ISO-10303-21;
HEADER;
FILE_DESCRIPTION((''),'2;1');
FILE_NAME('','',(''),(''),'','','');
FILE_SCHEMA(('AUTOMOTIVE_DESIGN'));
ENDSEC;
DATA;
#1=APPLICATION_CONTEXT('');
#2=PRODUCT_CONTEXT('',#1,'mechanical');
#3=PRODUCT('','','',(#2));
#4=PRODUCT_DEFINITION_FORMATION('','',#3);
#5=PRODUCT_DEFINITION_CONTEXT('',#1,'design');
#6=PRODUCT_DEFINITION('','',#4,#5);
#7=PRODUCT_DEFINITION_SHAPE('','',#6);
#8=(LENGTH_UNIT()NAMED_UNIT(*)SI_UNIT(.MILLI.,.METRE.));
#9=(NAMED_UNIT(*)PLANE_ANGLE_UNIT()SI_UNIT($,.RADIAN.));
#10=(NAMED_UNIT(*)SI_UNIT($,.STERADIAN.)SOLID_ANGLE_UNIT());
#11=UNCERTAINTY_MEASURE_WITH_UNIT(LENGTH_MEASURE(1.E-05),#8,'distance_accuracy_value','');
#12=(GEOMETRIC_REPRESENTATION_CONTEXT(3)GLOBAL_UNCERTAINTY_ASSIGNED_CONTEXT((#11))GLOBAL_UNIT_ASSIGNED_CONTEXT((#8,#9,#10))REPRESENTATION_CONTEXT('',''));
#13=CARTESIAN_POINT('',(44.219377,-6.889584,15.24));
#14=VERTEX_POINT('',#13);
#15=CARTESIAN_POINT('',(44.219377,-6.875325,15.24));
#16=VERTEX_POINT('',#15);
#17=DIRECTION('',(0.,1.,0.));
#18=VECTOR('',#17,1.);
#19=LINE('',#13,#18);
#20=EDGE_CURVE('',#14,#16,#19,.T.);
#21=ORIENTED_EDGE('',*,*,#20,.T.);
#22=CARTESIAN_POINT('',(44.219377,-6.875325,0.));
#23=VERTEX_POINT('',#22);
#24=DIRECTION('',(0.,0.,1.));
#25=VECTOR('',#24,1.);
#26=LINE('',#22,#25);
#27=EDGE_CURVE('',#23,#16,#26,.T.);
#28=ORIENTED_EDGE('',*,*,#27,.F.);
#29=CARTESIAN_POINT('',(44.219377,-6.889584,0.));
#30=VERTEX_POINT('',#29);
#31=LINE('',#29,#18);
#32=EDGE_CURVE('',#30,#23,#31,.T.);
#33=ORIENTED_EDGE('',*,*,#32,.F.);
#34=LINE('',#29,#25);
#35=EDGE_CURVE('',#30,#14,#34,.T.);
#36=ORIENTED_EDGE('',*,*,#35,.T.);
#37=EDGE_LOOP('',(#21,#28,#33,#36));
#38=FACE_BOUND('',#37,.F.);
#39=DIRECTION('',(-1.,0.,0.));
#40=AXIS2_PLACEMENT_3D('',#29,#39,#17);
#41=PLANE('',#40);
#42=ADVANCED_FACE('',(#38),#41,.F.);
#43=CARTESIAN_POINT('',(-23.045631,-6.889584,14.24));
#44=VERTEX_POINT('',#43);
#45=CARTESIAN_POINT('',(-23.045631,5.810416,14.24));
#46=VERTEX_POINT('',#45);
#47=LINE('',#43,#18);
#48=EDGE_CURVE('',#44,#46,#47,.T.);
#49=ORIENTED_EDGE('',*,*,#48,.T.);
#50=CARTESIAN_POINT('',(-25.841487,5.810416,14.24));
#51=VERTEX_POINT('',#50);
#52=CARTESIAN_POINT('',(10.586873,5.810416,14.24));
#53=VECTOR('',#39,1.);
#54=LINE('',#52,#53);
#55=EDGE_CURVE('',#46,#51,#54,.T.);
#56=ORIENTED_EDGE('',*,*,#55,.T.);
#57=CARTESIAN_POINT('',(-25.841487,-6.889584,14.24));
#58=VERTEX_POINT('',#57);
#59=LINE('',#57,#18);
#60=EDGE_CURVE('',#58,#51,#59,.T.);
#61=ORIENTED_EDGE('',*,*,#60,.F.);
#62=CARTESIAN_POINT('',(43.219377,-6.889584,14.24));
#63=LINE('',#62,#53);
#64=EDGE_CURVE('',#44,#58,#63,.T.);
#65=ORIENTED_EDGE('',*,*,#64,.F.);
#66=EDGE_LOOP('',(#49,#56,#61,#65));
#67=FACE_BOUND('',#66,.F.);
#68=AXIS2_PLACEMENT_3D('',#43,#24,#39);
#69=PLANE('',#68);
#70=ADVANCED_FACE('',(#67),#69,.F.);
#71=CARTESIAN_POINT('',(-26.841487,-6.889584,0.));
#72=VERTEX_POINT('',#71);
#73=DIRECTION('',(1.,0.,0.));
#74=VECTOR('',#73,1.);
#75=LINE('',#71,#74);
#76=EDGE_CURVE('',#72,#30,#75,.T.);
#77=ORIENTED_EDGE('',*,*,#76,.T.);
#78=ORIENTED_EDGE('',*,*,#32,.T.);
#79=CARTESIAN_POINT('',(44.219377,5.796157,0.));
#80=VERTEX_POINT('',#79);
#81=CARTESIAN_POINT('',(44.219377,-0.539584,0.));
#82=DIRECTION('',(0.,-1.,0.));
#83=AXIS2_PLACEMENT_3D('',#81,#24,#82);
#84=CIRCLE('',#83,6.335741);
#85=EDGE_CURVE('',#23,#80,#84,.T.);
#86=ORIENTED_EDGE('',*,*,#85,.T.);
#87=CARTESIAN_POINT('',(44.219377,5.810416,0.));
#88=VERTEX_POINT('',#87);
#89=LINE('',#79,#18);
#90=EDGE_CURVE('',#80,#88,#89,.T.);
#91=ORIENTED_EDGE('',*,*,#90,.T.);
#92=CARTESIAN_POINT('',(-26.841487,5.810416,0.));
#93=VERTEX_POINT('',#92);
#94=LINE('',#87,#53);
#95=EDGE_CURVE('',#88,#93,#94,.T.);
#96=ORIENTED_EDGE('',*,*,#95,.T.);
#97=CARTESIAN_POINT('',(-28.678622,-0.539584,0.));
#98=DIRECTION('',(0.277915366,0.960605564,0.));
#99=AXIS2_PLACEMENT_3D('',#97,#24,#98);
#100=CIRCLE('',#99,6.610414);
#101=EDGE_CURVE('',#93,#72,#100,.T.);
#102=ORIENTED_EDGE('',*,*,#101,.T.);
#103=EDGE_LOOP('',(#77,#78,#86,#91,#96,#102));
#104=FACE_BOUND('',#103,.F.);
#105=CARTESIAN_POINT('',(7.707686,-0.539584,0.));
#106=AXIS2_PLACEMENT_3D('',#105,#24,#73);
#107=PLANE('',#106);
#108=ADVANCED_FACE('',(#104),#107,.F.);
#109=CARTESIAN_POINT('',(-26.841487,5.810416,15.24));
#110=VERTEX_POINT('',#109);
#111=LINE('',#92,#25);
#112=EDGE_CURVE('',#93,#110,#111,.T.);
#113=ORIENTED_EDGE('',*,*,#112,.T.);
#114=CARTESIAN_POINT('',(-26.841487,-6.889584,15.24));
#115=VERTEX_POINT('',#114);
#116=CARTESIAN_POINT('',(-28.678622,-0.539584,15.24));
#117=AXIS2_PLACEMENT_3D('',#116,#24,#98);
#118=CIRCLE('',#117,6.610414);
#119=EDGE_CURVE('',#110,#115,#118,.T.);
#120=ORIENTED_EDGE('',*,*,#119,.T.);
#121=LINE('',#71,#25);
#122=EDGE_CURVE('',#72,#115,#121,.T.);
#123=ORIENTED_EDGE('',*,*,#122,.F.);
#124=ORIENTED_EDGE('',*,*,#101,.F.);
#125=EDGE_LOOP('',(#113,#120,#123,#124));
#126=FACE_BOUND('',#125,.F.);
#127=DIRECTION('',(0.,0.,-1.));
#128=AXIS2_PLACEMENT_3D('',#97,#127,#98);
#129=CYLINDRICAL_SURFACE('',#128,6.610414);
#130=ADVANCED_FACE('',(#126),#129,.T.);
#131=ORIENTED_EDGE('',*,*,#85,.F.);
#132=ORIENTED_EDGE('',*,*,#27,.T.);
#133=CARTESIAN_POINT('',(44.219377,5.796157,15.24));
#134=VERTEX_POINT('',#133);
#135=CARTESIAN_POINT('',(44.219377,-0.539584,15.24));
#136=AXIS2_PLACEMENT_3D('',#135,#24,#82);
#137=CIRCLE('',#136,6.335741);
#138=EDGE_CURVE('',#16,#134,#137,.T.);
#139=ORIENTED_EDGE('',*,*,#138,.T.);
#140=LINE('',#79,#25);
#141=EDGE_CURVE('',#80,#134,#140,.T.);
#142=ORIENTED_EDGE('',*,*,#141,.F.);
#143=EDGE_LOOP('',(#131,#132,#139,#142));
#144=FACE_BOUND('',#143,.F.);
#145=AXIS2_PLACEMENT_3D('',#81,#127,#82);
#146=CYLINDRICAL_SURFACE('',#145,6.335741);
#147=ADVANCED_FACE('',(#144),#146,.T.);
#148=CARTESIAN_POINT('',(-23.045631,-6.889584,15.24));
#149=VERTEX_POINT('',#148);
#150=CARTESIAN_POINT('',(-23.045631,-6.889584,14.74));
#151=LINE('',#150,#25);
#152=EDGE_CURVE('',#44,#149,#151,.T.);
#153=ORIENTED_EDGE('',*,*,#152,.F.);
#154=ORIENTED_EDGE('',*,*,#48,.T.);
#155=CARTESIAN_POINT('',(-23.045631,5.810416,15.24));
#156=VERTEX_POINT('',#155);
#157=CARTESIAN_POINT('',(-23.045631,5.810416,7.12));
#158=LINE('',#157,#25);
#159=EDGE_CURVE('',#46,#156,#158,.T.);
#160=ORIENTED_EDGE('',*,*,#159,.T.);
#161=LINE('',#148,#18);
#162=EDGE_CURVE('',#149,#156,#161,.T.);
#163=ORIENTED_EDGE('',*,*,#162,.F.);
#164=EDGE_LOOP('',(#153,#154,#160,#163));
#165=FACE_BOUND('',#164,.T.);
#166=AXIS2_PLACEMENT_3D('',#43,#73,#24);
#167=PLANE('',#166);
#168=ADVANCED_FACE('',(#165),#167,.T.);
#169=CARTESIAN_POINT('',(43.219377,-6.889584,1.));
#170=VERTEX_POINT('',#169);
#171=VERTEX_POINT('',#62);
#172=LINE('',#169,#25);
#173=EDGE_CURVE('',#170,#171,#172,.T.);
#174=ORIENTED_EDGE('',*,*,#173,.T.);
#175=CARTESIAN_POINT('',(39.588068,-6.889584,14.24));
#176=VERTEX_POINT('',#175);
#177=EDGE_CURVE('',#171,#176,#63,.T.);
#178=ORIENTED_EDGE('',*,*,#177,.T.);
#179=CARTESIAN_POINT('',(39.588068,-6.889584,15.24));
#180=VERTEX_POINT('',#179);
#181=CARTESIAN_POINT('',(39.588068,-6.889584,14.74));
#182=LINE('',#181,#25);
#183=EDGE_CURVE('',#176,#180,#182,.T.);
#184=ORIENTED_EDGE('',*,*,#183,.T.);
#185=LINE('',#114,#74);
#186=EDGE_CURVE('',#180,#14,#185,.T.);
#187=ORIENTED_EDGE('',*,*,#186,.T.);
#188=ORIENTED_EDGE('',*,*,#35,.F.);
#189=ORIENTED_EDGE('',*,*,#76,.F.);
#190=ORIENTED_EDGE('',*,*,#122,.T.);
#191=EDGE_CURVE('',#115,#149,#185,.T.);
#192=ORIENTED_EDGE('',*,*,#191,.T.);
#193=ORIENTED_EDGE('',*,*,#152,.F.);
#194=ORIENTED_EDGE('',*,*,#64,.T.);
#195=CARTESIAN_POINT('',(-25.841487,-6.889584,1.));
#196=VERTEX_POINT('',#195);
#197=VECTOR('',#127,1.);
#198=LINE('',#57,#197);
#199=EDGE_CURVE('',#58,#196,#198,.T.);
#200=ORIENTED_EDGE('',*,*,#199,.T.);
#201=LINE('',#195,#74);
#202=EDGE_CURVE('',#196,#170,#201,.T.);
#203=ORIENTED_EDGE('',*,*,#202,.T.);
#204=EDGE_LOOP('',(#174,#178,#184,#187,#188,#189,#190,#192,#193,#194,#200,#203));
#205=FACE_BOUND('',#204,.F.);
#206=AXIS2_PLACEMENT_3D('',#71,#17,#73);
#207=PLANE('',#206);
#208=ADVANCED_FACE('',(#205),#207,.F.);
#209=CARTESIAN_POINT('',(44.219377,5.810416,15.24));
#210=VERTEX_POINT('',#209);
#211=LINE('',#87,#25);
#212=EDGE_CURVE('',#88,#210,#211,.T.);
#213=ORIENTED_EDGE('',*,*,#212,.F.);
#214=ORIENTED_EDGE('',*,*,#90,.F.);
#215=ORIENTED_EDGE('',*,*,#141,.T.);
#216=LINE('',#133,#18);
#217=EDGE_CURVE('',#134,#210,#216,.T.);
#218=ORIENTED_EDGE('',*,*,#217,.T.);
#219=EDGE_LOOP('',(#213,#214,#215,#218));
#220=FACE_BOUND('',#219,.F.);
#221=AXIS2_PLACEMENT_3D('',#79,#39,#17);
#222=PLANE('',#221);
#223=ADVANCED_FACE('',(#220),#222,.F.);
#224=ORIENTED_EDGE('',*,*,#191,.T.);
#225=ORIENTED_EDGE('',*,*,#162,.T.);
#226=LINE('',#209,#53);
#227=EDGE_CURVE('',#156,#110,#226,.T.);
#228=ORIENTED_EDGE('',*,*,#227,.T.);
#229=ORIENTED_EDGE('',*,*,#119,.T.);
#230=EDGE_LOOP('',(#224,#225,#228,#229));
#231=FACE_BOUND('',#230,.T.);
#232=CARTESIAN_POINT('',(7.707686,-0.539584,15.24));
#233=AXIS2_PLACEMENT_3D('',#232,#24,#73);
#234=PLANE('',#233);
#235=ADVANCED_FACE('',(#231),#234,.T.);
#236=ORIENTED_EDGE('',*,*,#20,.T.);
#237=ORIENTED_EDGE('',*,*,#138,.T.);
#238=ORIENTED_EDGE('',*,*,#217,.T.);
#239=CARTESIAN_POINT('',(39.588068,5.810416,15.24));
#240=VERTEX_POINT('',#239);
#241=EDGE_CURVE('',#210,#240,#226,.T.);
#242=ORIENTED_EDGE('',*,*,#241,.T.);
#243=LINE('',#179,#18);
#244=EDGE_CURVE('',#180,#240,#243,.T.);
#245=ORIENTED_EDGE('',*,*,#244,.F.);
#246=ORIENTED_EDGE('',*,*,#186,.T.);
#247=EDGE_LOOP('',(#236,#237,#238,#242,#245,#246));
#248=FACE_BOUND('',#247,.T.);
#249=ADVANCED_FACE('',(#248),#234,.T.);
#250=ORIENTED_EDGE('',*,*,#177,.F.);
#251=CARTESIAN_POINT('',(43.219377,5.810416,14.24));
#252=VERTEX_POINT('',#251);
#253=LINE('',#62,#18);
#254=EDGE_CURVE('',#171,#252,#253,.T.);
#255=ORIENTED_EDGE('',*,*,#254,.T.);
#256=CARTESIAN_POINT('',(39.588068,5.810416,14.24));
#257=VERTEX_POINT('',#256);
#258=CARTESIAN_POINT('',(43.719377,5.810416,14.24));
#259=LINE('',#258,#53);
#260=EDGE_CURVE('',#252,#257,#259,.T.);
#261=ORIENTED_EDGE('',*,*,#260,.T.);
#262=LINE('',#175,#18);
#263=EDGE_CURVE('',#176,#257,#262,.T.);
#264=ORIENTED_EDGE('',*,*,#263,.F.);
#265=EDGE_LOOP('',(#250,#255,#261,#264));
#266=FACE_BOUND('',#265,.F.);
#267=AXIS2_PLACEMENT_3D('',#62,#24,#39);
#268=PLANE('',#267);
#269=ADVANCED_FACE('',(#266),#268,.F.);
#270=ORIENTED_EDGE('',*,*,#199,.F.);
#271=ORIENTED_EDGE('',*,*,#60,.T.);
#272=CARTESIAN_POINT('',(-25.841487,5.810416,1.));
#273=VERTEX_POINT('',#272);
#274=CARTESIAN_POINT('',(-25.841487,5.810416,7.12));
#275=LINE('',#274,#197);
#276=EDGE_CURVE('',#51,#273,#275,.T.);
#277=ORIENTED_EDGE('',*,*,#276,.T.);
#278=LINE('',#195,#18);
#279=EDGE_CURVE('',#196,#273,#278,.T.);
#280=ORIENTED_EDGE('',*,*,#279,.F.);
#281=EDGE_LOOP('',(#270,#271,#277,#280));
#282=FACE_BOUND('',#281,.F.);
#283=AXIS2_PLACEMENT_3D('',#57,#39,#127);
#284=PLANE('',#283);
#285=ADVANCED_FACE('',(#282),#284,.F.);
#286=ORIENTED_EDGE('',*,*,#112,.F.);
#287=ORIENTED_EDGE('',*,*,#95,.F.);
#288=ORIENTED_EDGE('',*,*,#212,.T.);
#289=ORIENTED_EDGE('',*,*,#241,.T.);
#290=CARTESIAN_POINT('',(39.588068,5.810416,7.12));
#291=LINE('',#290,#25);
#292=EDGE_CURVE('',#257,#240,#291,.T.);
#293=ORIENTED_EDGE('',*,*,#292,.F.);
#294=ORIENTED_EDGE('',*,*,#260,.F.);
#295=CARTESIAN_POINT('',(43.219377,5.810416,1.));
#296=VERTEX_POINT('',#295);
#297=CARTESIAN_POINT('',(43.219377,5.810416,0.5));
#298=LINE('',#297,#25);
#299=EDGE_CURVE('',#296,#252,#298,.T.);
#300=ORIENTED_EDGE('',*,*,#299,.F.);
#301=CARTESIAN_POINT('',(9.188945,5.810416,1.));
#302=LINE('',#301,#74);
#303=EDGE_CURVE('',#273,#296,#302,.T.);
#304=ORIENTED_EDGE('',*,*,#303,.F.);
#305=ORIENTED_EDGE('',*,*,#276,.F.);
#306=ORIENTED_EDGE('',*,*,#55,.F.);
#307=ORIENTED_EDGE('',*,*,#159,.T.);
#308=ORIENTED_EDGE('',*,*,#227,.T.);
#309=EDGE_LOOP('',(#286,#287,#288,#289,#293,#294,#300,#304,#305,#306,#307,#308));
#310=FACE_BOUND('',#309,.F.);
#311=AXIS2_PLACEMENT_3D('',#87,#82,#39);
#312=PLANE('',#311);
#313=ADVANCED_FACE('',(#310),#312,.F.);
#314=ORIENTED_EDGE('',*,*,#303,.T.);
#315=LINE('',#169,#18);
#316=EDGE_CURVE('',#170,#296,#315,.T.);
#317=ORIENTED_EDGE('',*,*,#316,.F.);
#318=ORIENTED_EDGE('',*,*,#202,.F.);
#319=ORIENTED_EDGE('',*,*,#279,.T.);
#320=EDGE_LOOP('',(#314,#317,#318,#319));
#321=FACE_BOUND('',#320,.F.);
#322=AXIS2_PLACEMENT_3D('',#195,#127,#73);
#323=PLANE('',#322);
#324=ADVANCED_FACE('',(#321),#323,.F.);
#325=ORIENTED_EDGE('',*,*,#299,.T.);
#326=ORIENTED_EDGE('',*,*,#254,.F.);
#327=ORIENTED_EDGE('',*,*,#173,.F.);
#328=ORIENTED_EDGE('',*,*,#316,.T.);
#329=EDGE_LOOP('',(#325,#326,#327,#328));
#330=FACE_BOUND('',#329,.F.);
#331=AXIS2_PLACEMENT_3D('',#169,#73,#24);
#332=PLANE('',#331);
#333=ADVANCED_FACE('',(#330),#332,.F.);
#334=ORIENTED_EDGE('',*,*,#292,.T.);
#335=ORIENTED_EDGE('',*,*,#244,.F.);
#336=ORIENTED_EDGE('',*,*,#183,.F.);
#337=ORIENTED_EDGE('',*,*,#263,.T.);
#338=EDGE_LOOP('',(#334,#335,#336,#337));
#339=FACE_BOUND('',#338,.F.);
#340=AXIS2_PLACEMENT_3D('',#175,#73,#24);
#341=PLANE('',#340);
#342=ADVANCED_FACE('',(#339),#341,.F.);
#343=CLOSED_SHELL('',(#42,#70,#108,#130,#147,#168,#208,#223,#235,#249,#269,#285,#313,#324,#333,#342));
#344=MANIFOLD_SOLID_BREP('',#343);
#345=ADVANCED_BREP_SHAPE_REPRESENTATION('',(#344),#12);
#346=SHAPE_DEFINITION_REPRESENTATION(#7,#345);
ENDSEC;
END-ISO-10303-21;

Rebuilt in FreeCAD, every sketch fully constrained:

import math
import FreeCAD as App
import Part
import Sketcher
from FreeCAD import Vector
Q = App.Units.Quantity

doc = App.newDocument("Part")
body = doc.addObject("PartDesign::Body", "Body")

sketch1 = body.newObject("Sketcher::SketchObject", "Sketch")
sketch1.AttachmentSupport = (doc.getObject("XY_Plane"), [""])
sketch1.MapMode = "FlatFace"
sketch1.addGeometry([
    Part.LineSegment(Vector(44.219, 5.81, 0), Vector(-26.841, 5.81, 0)),
    Part.ArcOfCircle(Part.Circle(Vector(-28.679, -0.54, 0), Vector(0, 0, 1), 6.61), math.radians(74), math.radians(286)),
    Part.LineSegment(Vector(-26.841, -6.89, 0), Vector(44.219, -6.89, 0)),
    Part.LineSegment(Vector(44.219, -6.89, 0), Vector(44.219, -6.875, 0)),
    Part.ArcOfCircle(Part.Circle(Vector(44.219, -0.54, 0), Vector(0, 0, 1), 6.336), math.radians(-90), math.radians(90)),
    Part.LineSegment(Vector(44.219, 5.796, 0), Vector(44.219, 5.81, 0)),
], False)
sketch1.addConstraint([
    Sketcher.Constraint("Coincident", 0, 2, 1, 1),
    Sketcher.Constraint("Coincident", 1, 2, 2, 1),
    Sketcher.Constraint("Coincident", 2, 2, 3, 1),
    Sketcher.Constraint("Coincident", 3, 2, 4, 1),
    Sketcher.Constraint("Coincident", 4, 2, 5, 1),
    Sketcher.Constraint("Coincident", 5, 2, 0, 1),
    Sketcher.Constraint("Horizontal", 0),
    Sketcher.Constraint("Horizontal", 2),
    Sketcher.Constraint("Vertical", 3),
    Sketcher.Constraint("Vertical", 5),
    Sketcher.Constraint("Horizontal", 1, 3, 4, 3),
    Sketcher.Constraint("Vertical", 0, 2, 1, 2),
    Sketcher.Constraint("Vertical", 4, 3, 2, 2),
    Sketcher.Constraint("Vertical", 3, 2, 4, 2),
    Sketcher.Constraint("DistanceY", 1, 2, 0, 2, Q("0.5 in")),
    Sketcher.Constraint("DistanceX", 1, 3, 4, 3, Q("2.87 in")),
    Sketcher.Constraint("Radius", 4, Q("6.335741 mm")),
    Sketcher.Constraint("Radius", 1, Q("6.610414 mm")),
    Sketcher.Constraint("DistanceX", 1, 3, -1, 1, Q("28.678622 mm")),
    Sketcher.Constraint("DistanceY", 1, 3, -1, 1, Q("0.539584 mm")),
])
pad1 = body.newObject("PartDesign::Pad", "Pad")
pad1.Profile = sketch1
pad1.Length = Q("0.6 in")

sketch2 = body.newObject("Sketcher::SketchObject", "Sketch001")
sketch2.AttachmentSupport = (doc.getObject("XZ_Plane"), [""])
sketch2.MapMode = "FlatFace"
sketch2.AttachmentOffset = App.Placement(Vector(0, 0, 6.889584), App.Rotation())
sketch2.addGeometry([
    Part.LineSegment(Vector(-23, 14.2, 0), Vector(-25.8, 14.2, 0)),
    Part.LineSegment(Vector(-25.8, 14.2, 0), Vector(-25.8, 1, 0)),
    Part.LineSegment(Vector(-25.8, 1, 0), Vector(43.2, 1, 0)),
    Part.LineSegment(Vector(43.2, 1, 0), Vector(43.2, 14.2, 0)),
    Part.LineSegment(Vector(43.2, 14.2, 0), Vector(39.6, 14.2, 0)),
    Part.LineSegment(Vector(39.6, 14.2, 0), Vector(39.6, 15.2, 0)),
    Part.LineSegment(Vector(39.6, 15.2, 0), Vector(-23, 15.2, 0)),
    Part.LineSegment(Vector(-23, 15.2, 0), Vector(-23, 14.2, 0)),
], False)
sketch2.addConstraint([
    Sketcher.Constraint("Coincident", 0, 2, 1, 1),
    Sketcher.Constraint("Coincident", 1, 2, 2, 1),
    Sketcher.Constraint("Coincident", 2, 2, 3, 1),
    Sketcher.Constraint("Coincident", 3, 2, 4, 1),
    Sketcher.Constraint("Coincident", 4, 2, 5, 1),
    Sketcher.Constraint("Coincident", 5, 2, 6, 1),
    Sketcher.Constraint("Coincident", 6, 2, 7, 1),
    Sketcher.Constraint("Coincident", 7, 2, 0, 1),
    Sketcher.Constraint("Horizontal", 0),
    Sketcher.Constraint("Vertical", 1),
    Sketcher.Constraint("Horizontal", 2),
    Sketcher.Constraint("Vertical", 3),
    Sketcher.Constraint("Horizontal", 4),
    Sketcher.Constraint("Vertical", 5),
    Sketcher.Constraint("Horizontal", 6),
    Sketcher.Constraint("Vertical", 7),
    Sketcher.Constraint("Horizontal", 0, 2, 3, 2),
    Sketcher.Constraint("DistanceY", -1, 1, 5, 2, Q("0.6 in")),
    Sketcher.Constraint("DistanceX", 6, 2, 6, 1, Q("62.633699 mm")),
    Sketcher.Constraint("DistanceY", 1, 2, 1, 1, Q("13.24 mm")),
    Sketcher.Constraint("DistanceY", 5, 1, 5, 2, Q("1 mm")),
    Sketcher.Constraint("DistanceX", 4, 2, 4, 1, Q("3.631309 mm")),
    Sketcher.Constraint("DistanceX", 0, 2, 0, 1, Q("2.795856 mm")),
    Sketcher.Constraint("DistanceX", 6, 2, -1, 1, Q("23.045631 mm")),
])
pocket1 = body.newObject("PartDesign::Pocket", "Pocket")
pocket1.Profile = sketch2
pocket1.Length = Q("1 in")

doc.recompute()
